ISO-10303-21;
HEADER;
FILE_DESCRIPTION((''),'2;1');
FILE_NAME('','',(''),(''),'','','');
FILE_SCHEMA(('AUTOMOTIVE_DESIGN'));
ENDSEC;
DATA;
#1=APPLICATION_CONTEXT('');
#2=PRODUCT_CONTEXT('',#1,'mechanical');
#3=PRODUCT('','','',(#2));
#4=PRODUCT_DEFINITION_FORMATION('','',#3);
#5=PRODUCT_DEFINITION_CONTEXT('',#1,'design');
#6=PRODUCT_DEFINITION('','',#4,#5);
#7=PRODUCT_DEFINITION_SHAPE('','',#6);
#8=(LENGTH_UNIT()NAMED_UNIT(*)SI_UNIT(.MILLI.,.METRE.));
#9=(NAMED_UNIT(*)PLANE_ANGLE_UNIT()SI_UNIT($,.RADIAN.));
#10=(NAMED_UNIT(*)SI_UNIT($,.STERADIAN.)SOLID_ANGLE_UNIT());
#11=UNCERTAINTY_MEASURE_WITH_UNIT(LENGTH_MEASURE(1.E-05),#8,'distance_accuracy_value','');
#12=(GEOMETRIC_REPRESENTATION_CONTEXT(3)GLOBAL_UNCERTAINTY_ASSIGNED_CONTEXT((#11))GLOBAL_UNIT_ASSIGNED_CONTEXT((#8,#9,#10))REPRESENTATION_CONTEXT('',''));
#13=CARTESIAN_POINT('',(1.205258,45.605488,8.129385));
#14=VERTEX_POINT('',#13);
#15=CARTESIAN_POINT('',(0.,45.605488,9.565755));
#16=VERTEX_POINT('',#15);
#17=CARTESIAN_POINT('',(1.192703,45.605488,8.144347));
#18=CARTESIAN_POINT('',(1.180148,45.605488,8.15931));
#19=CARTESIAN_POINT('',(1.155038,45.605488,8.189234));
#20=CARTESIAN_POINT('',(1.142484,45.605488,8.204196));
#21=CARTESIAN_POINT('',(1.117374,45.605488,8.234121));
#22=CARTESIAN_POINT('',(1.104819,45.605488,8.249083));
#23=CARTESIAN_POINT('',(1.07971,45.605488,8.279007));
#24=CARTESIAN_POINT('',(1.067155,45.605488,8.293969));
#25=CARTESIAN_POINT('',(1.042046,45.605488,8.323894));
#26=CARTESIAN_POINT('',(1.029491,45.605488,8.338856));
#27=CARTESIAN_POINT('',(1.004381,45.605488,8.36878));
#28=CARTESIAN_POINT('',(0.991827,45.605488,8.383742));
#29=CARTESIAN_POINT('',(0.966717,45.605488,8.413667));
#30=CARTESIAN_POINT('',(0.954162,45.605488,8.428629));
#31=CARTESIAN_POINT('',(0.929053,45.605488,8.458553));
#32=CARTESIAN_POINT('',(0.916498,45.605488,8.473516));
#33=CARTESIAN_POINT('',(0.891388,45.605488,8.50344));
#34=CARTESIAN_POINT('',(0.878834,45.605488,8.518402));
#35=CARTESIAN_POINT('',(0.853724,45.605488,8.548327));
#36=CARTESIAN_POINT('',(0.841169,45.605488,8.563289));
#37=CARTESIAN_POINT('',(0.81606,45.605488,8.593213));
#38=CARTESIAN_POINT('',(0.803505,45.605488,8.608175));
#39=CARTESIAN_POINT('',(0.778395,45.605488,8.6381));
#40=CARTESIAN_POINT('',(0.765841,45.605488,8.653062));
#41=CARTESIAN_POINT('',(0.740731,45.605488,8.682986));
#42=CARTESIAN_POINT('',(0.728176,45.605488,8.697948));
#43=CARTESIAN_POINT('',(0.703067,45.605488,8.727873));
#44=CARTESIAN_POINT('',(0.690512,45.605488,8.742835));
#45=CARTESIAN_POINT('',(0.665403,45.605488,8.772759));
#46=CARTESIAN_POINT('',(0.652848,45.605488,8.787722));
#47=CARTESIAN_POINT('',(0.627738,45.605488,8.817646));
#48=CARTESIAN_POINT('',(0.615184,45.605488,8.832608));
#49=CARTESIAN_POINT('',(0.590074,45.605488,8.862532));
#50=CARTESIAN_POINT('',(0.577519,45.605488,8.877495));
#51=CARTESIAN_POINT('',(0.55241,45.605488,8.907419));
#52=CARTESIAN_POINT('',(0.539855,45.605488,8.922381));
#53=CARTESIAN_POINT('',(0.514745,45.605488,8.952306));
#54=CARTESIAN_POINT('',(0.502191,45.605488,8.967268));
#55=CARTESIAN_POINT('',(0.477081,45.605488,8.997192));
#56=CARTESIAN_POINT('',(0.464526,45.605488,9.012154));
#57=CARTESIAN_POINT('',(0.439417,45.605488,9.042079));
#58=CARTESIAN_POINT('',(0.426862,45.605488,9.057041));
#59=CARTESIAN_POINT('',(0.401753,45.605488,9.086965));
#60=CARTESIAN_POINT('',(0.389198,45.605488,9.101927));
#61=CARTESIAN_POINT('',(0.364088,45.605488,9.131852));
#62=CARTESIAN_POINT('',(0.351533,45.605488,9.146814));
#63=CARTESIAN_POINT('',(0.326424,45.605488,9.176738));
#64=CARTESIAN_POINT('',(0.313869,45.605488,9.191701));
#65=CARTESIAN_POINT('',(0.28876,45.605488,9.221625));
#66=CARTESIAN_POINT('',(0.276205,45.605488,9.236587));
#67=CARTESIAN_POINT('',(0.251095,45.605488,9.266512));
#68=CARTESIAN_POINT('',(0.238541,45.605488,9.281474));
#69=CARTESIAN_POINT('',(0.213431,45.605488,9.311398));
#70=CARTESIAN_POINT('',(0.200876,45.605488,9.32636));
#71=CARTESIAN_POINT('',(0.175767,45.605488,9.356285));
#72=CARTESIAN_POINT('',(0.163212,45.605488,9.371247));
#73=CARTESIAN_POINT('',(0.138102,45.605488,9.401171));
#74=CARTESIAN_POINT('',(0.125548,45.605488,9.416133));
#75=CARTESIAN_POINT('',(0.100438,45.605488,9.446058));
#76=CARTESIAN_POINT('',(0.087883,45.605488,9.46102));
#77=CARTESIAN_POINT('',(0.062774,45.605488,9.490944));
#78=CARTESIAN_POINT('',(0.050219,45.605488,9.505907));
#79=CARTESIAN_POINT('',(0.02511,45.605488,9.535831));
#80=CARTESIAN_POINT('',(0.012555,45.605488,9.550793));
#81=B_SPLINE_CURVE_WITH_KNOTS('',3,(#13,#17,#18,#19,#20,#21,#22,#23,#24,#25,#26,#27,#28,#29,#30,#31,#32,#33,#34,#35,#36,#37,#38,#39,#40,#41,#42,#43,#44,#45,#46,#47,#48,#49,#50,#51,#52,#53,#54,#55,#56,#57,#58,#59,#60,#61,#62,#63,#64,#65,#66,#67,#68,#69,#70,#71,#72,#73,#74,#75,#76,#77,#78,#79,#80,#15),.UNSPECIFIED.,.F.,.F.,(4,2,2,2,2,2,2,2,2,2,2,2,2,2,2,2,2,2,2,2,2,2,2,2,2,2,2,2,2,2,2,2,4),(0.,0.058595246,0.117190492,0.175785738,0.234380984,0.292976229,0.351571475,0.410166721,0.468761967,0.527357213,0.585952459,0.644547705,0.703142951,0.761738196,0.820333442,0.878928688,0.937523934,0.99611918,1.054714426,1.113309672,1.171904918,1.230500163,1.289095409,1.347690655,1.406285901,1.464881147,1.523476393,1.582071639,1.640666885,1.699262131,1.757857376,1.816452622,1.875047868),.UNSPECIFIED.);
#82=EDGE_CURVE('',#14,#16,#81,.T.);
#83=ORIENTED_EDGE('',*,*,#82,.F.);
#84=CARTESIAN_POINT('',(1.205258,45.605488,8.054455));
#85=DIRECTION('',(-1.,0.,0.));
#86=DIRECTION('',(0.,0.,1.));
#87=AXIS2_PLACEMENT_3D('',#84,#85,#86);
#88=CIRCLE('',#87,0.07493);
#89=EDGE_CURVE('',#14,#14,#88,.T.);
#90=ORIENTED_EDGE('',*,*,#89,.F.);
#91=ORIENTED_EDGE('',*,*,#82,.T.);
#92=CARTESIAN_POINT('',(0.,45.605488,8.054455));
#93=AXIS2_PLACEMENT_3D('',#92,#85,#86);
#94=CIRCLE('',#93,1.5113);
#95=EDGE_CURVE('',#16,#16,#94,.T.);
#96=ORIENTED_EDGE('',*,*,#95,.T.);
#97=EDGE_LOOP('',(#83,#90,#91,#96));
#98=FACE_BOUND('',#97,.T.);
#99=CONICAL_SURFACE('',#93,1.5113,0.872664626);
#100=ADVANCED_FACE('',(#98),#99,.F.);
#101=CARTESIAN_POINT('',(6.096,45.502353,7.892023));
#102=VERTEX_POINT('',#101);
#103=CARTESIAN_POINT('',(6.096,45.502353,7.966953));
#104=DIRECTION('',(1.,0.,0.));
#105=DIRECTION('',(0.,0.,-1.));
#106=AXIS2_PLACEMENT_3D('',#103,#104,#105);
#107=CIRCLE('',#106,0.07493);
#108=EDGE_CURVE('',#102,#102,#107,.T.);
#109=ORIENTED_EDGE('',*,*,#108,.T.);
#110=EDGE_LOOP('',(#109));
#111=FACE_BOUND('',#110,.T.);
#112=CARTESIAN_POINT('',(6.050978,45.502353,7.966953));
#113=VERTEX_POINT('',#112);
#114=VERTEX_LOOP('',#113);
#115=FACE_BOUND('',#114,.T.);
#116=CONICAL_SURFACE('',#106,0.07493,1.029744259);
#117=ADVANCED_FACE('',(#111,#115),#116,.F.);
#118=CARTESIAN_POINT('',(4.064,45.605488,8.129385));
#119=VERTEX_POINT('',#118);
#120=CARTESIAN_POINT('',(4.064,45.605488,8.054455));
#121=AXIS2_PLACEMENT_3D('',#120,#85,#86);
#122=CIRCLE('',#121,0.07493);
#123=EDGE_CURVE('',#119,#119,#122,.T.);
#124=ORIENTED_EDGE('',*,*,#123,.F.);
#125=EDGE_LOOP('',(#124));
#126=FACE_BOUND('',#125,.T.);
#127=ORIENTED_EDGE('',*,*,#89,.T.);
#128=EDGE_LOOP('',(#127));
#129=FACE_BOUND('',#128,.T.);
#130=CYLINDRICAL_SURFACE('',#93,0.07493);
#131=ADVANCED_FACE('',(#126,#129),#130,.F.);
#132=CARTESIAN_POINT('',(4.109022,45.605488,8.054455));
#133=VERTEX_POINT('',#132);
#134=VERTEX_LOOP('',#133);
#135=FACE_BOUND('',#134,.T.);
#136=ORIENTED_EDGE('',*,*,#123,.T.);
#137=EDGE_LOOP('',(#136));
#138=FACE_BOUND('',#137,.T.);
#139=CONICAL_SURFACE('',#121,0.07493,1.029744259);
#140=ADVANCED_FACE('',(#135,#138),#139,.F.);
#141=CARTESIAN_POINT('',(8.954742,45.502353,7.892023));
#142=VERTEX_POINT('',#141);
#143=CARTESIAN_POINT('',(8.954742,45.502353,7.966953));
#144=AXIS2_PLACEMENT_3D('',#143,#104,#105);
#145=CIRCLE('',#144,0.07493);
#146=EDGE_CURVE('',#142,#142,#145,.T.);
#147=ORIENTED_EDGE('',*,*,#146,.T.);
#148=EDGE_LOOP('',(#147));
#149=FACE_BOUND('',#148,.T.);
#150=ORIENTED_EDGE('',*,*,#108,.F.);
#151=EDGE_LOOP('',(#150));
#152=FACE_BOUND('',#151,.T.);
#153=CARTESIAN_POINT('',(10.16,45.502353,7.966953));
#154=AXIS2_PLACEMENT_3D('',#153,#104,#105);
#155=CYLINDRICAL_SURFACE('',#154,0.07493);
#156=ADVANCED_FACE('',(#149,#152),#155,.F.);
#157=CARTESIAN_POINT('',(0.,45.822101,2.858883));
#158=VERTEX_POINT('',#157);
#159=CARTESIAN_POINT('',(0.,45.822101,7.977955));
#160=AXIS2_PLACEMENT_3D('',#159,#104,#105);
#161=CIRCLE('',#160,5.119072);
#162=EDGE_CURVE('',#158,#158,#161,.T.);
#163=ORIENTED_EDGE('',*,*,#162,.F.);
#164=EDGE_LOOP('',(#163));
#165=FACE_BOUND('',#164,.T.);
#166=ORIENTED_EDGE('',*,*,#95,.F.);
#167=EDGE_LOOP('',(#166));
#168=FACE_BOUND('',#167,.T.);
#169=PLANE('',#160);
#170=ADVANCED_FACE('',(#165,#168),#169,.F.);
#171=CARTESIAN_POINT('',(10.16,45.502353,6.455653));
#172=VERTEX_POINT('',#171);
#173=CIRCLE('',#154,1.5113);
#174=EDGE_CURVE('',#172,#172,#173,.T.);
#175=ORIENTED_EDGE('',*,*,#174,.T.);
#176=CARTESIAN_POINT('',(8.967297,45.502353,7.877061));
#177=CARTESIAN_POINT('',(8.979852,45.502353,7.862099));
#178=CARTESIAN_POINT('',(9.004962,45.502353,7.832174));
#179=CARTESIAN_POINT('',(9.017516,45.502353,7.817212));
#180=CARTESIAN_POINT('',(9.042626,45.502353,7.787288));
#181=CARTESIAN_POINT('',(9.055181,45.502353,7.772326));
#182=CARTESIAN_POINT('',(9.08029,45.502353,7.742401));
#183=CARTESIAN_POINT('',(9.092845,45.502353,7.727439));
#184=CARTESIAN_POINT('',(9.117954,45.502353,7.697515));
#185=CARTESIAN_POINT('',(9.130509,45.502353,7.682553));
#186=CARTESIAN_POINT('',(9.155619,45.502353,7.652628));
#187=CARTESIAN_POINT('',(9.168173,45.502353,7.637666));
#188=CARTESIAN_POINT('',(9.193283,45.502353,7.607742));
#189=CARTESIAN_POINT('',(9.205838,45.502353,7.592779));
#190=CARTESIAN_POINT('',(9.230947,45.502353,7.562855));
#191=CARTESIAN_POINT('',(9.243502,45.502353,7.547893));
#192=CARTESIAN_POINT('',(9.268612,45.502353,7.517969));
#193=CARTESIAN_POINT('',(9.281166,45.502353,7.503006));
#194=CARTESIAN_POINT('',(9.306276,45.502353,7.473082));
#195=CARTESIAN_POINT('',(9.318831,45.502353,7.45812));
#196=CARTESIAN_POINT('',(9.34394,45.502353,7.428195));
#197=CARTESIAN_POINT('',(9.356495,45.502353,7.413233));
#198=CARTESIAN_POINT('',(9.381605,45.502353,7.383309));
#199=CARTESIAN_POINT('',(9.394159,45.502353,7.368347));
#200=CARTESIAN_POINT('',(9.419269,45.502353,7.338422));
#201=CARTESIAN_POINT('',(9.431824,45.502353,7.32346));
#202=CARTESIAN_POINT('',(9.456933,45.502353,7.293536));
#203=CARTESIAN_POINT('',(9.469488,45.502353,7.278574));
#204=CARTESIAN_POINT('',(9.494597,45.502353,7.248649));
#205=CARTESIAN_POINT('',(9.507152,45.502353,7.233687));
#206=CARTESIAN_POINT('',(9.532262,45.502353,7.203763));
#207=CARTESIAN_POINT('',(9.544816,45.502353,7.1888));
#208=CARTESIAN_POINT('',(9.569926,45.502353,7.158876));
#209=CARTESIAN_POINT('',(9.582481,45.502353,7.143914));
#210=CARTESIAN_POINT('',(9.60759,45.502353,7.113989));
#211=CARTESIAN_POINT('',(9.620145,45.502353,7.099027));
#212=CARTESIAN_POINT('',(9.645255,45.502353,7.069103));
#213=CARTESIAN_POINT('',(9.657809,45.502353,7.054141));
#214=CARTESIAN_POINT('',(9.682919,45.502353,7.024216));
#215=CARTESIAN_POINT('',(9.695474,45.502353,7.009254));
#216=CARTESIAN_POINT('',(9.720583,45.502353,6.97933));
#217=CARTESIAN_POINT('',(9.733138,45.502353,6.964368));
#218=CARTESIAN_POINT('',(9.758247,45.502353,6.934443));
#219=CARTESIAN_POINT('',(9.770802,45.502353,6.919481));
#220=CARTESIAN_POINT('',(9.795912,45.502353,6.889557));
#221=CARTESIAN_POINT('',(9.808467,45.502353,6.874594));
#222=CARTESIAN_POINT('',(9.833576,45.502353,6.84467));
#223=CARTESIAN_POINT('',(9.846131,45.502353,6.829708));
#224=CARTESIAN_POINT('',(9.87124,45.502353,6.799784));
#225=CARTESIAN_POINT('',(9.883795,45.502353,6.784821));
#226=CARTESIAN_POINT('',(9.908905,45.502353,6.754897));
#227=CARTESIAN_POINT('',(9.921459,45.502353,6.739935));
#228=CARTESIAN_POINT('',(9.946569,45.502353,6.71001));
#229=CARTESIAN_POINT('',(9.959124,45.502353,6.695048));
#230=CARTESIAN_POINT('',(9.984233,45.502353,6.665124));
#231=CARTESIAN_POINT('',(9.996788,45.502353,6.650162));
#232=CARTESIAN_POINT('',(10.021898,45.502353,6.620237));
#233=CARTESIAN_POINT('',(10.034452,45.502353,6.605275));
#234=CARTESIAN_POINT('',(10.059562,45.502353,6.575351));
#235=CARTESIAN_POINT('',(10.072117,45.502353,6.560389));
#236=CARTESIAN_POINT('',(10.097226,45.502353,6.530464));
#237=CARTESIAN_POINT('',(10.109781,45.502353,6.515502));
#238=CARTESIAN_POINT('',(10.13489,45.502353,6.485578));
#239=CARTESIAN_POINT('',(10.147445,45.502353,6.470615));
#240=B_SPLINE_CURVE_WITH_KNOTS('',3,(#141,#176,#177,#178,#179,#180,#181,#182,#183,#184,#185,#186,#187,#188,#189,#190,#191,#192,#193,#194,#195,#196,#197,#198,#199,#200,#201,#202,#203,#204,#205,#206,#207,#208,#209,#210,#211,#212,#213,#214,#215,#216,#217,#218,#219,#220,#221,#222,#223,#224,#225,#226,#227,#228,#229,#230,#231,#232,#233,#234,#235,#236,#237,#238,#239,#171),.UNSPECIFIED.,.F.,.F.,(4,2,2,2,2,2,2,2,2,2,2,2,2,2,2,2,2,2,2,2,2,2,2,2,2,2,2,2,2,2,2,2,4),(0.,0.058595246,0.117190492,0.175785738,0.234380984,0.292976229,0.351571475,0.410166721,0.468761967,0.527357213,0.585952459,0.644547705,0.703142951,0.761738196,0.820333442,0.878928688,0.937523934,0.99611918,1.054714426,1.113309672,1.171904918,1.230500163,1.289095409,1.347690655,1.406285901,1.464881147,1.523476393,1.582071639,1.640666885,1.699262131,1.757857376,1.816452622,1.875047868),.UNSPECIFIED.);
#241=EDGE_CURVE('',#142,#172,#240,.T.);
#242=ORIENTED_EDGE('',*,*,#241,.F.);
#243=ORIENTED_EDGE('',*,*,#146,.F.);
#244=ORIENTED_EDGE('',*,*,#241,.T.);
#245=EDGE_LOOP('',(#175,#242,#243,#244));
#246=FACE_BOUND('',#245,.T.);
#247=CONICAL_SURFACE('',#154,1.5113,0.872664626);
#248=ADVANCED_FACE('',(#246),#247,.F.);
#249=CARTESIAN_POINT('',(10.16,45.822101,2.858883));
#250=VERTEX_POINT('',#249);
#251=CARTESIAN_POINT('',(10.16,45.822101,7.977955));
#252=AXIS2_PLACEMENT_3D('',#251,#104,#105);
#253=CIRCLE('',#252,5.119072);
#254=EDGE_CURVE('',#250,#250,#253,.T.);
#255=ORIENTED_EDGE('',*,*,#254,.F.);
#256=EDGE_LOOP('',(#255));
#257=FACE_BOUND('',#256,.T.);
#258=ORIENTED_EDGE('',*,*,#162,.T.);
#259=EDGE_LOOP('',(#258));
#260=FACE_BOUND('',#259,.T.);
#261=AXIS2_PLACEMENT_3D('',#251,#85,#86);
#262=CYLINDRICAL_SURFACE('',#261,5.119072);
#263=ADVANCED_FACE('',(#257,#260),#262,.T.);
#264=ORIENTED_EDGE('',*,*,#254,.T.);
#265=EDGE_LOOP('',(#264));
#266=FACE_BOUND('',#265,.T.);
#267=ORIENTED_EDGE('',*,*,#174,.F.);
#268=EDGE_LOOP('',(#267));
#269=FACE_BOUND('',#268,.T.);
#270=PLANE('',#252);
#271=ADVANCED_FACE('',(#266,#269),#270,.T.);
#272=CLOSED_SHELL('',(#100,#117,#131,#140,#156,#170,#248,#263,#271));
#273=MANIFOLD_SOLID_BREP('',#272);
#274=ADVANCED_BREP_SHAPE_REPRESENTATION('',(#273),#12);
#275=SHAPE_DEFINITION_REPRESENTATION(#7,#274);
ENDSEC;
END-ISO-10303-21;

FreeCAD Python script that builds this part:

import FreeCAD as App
import Part
import Sketcher
Q = App.Units.Quantity

doc = App.newDocument("Part")
body = doc.addObject("PartDesign::Body", "Body")

# Sketch on YZ plane
sketch1 = body.newObject("Sketcher::SketchObject", "Sketch")
sketch1.AttachmentSupport = (doc.getObject("YZ_Plane"), [""])
sketch1.MapMode = "FlatFace"
sketch1.addGeometry(Part.Circle(App.Vector(45.822101, 7.977955, 0), App.Vector(0, 0, 1), 5.119072), False)
sketch1.addConstraint(Sketcher.Constraint("Diameter", 0, Q("10.238144 mm")))
sketch1.addConstraint(Sketcher.Constraint("DistanceX", -1, 1, 0, 3, Q("45.822101 mm")))
sketch1.addConstraint(Sketcher.Constraint("DistanceY", -1, 1, 0, 3, Q("7.977955 mm")))
pad1 = body.newObject("PartDesign::Pad", "Pad")
pad1.Profile = sketch1
pad1.Length = Q("0.4 in")

# Sketch on YZ plane
sketch2 = body.newObject("Sketcher::SketchObject", "Sketch001")
sketch2.AttachmentSupport = (doc.getObject("YZ_Plane"), [""])
sketch2.MapMode = "FlatFace"
sketch2.AttachmentOffset = App.Placement(App.Vector(0, 0, 0.4 * 25.4), App.Rotation())
sketch2.addGeometry(Part.Circle(App.Vector(45.502353, 7.966953, 0), App.Vector(0, 0, 1), 0.07493), False)
sketch2.addGeometry(Part.Circle(App.Vector(76.052039, 8.184469, 0), App.Vector(0, 0, 1), 0.07493), False)
sketch2.addGeometry(Part.Circle(App.Vector(76.508143, 8.264752, 0), App.Vector(0, 0, 1), 0.07493), False)
sketch2.addConstraint(Sketcher.Constraint("Equal", 0, 1))
sketch2.addConstraint(Sketcher.Constraint("Equal", 1, 2))
sketch2.addConstraint(Sketcher.Constraint("Diameter", 0, Q("0.0059 in")))
sketch2.addConstraint(Sketcher.Constraint("DistanceY", 0, 3, 2, 3, Q("0.297799 mm")))
sketch2.addConstraint(Sketcher.Constraint("DistanceX", -1, 1, 1, 3, Q("76.052039 mm")))
sketch2.addConstraint(Sketcher.Constraint("DistanceY", -1, 1, 1, 3, Q("8.184469 mm")))
sketch2.addConstraint(Sketcher.Constraint("DistanceY", -1, 1, 2, 3, Q("8.264752 mm")))
sketch2.addConstraint(Sketcher.Constraint("DistanceX", 0, 3, 2, 3, Q("31.00579 mm")))
sketch2.addConstraint(Sketcher.Constraint("DistanceX", -1, 1, 0, 3, Q("45.502353 mm")))
doc.recompute()
hole = body.newObject("PartDesign::Hole", "Hole")
hole.Profile = sketch2
hole.ThreadType = "None"
hole.Diameter = Q("0.0059 in")
hole.DepthType = "Dimension"
hole.Depth = Q("0.16 in")
hole.DrillPoint = "Angled"
hole.DrillPointAngle = 118
hole.HoleCutType = "Countersink"
hole.HoleCutDiameter = Q("0.119 in")
hole.HoleCutCountersinkAngle = 100

# Sketch on YZ plane
sketch3 = body.newObject("Sketcher::SketchObject", "Sketch002")
sketch3.AttachmentSupport = (doc.getObject("YZ_Plane"), [""])
sketch3.MapMode = "FlatFace"
sketch3.addGeometry(Part.Circle(App.Vector(45.605488, 8.054455, 0), App.Vector(0, 0, 1), 0.07493), False)
sketch3.addGeometry(Part.Circle(App.Vector(14.983538, 7.835684, 0), App.Vector(0, 0, 1), 0.07493), False)
sketch3.addConstraint(Sketcher.Constraint("Equal", 0, 1))
sketch3.addConstraint(Sketcher.Constraint("Diameter", 0, Q("0.0059 in")))
sketch3.addConstraint(Sketcher.Constraint("DistanceX", -1, 1, 1, 3, Q("14.983538 mm")))
sketch3.addConstraint(Sketcher.Constraint("DistanceX", 1, 3, 0, 3, Q("30.62195 mm")))
sketch3.addConstraint(Sketcher.Constraint("DistanceY", 1, 3, 0, 3, Q("0.218771 mm")))
sketch3.addConstraint(Sketcher.Constraint("DistanceY", -1, 1, 0, 3, Q("8.054455 mm")))
doc.recompute()
hole2 = body.newObject("PartDesign::Hole", "Hole001")
hole2.Profile = sketch3
hole2.ThreadType = "None"
hole2.Diameter = Q("0.0059 in")
hole2.DepthType = "Dimension"
hole2.Depth = Q("0.16 in")
hole2.DrillPoint = "Angled"
hole2.DrillPointAngle = 118
hole2.HoleCutType = "Countersink"
hole2.HoleCutDiameter = Q("0.119 in")
hole2.HoleCutCountersinkAngle = 100
hole2.Reversed = True

doc.recompute()
